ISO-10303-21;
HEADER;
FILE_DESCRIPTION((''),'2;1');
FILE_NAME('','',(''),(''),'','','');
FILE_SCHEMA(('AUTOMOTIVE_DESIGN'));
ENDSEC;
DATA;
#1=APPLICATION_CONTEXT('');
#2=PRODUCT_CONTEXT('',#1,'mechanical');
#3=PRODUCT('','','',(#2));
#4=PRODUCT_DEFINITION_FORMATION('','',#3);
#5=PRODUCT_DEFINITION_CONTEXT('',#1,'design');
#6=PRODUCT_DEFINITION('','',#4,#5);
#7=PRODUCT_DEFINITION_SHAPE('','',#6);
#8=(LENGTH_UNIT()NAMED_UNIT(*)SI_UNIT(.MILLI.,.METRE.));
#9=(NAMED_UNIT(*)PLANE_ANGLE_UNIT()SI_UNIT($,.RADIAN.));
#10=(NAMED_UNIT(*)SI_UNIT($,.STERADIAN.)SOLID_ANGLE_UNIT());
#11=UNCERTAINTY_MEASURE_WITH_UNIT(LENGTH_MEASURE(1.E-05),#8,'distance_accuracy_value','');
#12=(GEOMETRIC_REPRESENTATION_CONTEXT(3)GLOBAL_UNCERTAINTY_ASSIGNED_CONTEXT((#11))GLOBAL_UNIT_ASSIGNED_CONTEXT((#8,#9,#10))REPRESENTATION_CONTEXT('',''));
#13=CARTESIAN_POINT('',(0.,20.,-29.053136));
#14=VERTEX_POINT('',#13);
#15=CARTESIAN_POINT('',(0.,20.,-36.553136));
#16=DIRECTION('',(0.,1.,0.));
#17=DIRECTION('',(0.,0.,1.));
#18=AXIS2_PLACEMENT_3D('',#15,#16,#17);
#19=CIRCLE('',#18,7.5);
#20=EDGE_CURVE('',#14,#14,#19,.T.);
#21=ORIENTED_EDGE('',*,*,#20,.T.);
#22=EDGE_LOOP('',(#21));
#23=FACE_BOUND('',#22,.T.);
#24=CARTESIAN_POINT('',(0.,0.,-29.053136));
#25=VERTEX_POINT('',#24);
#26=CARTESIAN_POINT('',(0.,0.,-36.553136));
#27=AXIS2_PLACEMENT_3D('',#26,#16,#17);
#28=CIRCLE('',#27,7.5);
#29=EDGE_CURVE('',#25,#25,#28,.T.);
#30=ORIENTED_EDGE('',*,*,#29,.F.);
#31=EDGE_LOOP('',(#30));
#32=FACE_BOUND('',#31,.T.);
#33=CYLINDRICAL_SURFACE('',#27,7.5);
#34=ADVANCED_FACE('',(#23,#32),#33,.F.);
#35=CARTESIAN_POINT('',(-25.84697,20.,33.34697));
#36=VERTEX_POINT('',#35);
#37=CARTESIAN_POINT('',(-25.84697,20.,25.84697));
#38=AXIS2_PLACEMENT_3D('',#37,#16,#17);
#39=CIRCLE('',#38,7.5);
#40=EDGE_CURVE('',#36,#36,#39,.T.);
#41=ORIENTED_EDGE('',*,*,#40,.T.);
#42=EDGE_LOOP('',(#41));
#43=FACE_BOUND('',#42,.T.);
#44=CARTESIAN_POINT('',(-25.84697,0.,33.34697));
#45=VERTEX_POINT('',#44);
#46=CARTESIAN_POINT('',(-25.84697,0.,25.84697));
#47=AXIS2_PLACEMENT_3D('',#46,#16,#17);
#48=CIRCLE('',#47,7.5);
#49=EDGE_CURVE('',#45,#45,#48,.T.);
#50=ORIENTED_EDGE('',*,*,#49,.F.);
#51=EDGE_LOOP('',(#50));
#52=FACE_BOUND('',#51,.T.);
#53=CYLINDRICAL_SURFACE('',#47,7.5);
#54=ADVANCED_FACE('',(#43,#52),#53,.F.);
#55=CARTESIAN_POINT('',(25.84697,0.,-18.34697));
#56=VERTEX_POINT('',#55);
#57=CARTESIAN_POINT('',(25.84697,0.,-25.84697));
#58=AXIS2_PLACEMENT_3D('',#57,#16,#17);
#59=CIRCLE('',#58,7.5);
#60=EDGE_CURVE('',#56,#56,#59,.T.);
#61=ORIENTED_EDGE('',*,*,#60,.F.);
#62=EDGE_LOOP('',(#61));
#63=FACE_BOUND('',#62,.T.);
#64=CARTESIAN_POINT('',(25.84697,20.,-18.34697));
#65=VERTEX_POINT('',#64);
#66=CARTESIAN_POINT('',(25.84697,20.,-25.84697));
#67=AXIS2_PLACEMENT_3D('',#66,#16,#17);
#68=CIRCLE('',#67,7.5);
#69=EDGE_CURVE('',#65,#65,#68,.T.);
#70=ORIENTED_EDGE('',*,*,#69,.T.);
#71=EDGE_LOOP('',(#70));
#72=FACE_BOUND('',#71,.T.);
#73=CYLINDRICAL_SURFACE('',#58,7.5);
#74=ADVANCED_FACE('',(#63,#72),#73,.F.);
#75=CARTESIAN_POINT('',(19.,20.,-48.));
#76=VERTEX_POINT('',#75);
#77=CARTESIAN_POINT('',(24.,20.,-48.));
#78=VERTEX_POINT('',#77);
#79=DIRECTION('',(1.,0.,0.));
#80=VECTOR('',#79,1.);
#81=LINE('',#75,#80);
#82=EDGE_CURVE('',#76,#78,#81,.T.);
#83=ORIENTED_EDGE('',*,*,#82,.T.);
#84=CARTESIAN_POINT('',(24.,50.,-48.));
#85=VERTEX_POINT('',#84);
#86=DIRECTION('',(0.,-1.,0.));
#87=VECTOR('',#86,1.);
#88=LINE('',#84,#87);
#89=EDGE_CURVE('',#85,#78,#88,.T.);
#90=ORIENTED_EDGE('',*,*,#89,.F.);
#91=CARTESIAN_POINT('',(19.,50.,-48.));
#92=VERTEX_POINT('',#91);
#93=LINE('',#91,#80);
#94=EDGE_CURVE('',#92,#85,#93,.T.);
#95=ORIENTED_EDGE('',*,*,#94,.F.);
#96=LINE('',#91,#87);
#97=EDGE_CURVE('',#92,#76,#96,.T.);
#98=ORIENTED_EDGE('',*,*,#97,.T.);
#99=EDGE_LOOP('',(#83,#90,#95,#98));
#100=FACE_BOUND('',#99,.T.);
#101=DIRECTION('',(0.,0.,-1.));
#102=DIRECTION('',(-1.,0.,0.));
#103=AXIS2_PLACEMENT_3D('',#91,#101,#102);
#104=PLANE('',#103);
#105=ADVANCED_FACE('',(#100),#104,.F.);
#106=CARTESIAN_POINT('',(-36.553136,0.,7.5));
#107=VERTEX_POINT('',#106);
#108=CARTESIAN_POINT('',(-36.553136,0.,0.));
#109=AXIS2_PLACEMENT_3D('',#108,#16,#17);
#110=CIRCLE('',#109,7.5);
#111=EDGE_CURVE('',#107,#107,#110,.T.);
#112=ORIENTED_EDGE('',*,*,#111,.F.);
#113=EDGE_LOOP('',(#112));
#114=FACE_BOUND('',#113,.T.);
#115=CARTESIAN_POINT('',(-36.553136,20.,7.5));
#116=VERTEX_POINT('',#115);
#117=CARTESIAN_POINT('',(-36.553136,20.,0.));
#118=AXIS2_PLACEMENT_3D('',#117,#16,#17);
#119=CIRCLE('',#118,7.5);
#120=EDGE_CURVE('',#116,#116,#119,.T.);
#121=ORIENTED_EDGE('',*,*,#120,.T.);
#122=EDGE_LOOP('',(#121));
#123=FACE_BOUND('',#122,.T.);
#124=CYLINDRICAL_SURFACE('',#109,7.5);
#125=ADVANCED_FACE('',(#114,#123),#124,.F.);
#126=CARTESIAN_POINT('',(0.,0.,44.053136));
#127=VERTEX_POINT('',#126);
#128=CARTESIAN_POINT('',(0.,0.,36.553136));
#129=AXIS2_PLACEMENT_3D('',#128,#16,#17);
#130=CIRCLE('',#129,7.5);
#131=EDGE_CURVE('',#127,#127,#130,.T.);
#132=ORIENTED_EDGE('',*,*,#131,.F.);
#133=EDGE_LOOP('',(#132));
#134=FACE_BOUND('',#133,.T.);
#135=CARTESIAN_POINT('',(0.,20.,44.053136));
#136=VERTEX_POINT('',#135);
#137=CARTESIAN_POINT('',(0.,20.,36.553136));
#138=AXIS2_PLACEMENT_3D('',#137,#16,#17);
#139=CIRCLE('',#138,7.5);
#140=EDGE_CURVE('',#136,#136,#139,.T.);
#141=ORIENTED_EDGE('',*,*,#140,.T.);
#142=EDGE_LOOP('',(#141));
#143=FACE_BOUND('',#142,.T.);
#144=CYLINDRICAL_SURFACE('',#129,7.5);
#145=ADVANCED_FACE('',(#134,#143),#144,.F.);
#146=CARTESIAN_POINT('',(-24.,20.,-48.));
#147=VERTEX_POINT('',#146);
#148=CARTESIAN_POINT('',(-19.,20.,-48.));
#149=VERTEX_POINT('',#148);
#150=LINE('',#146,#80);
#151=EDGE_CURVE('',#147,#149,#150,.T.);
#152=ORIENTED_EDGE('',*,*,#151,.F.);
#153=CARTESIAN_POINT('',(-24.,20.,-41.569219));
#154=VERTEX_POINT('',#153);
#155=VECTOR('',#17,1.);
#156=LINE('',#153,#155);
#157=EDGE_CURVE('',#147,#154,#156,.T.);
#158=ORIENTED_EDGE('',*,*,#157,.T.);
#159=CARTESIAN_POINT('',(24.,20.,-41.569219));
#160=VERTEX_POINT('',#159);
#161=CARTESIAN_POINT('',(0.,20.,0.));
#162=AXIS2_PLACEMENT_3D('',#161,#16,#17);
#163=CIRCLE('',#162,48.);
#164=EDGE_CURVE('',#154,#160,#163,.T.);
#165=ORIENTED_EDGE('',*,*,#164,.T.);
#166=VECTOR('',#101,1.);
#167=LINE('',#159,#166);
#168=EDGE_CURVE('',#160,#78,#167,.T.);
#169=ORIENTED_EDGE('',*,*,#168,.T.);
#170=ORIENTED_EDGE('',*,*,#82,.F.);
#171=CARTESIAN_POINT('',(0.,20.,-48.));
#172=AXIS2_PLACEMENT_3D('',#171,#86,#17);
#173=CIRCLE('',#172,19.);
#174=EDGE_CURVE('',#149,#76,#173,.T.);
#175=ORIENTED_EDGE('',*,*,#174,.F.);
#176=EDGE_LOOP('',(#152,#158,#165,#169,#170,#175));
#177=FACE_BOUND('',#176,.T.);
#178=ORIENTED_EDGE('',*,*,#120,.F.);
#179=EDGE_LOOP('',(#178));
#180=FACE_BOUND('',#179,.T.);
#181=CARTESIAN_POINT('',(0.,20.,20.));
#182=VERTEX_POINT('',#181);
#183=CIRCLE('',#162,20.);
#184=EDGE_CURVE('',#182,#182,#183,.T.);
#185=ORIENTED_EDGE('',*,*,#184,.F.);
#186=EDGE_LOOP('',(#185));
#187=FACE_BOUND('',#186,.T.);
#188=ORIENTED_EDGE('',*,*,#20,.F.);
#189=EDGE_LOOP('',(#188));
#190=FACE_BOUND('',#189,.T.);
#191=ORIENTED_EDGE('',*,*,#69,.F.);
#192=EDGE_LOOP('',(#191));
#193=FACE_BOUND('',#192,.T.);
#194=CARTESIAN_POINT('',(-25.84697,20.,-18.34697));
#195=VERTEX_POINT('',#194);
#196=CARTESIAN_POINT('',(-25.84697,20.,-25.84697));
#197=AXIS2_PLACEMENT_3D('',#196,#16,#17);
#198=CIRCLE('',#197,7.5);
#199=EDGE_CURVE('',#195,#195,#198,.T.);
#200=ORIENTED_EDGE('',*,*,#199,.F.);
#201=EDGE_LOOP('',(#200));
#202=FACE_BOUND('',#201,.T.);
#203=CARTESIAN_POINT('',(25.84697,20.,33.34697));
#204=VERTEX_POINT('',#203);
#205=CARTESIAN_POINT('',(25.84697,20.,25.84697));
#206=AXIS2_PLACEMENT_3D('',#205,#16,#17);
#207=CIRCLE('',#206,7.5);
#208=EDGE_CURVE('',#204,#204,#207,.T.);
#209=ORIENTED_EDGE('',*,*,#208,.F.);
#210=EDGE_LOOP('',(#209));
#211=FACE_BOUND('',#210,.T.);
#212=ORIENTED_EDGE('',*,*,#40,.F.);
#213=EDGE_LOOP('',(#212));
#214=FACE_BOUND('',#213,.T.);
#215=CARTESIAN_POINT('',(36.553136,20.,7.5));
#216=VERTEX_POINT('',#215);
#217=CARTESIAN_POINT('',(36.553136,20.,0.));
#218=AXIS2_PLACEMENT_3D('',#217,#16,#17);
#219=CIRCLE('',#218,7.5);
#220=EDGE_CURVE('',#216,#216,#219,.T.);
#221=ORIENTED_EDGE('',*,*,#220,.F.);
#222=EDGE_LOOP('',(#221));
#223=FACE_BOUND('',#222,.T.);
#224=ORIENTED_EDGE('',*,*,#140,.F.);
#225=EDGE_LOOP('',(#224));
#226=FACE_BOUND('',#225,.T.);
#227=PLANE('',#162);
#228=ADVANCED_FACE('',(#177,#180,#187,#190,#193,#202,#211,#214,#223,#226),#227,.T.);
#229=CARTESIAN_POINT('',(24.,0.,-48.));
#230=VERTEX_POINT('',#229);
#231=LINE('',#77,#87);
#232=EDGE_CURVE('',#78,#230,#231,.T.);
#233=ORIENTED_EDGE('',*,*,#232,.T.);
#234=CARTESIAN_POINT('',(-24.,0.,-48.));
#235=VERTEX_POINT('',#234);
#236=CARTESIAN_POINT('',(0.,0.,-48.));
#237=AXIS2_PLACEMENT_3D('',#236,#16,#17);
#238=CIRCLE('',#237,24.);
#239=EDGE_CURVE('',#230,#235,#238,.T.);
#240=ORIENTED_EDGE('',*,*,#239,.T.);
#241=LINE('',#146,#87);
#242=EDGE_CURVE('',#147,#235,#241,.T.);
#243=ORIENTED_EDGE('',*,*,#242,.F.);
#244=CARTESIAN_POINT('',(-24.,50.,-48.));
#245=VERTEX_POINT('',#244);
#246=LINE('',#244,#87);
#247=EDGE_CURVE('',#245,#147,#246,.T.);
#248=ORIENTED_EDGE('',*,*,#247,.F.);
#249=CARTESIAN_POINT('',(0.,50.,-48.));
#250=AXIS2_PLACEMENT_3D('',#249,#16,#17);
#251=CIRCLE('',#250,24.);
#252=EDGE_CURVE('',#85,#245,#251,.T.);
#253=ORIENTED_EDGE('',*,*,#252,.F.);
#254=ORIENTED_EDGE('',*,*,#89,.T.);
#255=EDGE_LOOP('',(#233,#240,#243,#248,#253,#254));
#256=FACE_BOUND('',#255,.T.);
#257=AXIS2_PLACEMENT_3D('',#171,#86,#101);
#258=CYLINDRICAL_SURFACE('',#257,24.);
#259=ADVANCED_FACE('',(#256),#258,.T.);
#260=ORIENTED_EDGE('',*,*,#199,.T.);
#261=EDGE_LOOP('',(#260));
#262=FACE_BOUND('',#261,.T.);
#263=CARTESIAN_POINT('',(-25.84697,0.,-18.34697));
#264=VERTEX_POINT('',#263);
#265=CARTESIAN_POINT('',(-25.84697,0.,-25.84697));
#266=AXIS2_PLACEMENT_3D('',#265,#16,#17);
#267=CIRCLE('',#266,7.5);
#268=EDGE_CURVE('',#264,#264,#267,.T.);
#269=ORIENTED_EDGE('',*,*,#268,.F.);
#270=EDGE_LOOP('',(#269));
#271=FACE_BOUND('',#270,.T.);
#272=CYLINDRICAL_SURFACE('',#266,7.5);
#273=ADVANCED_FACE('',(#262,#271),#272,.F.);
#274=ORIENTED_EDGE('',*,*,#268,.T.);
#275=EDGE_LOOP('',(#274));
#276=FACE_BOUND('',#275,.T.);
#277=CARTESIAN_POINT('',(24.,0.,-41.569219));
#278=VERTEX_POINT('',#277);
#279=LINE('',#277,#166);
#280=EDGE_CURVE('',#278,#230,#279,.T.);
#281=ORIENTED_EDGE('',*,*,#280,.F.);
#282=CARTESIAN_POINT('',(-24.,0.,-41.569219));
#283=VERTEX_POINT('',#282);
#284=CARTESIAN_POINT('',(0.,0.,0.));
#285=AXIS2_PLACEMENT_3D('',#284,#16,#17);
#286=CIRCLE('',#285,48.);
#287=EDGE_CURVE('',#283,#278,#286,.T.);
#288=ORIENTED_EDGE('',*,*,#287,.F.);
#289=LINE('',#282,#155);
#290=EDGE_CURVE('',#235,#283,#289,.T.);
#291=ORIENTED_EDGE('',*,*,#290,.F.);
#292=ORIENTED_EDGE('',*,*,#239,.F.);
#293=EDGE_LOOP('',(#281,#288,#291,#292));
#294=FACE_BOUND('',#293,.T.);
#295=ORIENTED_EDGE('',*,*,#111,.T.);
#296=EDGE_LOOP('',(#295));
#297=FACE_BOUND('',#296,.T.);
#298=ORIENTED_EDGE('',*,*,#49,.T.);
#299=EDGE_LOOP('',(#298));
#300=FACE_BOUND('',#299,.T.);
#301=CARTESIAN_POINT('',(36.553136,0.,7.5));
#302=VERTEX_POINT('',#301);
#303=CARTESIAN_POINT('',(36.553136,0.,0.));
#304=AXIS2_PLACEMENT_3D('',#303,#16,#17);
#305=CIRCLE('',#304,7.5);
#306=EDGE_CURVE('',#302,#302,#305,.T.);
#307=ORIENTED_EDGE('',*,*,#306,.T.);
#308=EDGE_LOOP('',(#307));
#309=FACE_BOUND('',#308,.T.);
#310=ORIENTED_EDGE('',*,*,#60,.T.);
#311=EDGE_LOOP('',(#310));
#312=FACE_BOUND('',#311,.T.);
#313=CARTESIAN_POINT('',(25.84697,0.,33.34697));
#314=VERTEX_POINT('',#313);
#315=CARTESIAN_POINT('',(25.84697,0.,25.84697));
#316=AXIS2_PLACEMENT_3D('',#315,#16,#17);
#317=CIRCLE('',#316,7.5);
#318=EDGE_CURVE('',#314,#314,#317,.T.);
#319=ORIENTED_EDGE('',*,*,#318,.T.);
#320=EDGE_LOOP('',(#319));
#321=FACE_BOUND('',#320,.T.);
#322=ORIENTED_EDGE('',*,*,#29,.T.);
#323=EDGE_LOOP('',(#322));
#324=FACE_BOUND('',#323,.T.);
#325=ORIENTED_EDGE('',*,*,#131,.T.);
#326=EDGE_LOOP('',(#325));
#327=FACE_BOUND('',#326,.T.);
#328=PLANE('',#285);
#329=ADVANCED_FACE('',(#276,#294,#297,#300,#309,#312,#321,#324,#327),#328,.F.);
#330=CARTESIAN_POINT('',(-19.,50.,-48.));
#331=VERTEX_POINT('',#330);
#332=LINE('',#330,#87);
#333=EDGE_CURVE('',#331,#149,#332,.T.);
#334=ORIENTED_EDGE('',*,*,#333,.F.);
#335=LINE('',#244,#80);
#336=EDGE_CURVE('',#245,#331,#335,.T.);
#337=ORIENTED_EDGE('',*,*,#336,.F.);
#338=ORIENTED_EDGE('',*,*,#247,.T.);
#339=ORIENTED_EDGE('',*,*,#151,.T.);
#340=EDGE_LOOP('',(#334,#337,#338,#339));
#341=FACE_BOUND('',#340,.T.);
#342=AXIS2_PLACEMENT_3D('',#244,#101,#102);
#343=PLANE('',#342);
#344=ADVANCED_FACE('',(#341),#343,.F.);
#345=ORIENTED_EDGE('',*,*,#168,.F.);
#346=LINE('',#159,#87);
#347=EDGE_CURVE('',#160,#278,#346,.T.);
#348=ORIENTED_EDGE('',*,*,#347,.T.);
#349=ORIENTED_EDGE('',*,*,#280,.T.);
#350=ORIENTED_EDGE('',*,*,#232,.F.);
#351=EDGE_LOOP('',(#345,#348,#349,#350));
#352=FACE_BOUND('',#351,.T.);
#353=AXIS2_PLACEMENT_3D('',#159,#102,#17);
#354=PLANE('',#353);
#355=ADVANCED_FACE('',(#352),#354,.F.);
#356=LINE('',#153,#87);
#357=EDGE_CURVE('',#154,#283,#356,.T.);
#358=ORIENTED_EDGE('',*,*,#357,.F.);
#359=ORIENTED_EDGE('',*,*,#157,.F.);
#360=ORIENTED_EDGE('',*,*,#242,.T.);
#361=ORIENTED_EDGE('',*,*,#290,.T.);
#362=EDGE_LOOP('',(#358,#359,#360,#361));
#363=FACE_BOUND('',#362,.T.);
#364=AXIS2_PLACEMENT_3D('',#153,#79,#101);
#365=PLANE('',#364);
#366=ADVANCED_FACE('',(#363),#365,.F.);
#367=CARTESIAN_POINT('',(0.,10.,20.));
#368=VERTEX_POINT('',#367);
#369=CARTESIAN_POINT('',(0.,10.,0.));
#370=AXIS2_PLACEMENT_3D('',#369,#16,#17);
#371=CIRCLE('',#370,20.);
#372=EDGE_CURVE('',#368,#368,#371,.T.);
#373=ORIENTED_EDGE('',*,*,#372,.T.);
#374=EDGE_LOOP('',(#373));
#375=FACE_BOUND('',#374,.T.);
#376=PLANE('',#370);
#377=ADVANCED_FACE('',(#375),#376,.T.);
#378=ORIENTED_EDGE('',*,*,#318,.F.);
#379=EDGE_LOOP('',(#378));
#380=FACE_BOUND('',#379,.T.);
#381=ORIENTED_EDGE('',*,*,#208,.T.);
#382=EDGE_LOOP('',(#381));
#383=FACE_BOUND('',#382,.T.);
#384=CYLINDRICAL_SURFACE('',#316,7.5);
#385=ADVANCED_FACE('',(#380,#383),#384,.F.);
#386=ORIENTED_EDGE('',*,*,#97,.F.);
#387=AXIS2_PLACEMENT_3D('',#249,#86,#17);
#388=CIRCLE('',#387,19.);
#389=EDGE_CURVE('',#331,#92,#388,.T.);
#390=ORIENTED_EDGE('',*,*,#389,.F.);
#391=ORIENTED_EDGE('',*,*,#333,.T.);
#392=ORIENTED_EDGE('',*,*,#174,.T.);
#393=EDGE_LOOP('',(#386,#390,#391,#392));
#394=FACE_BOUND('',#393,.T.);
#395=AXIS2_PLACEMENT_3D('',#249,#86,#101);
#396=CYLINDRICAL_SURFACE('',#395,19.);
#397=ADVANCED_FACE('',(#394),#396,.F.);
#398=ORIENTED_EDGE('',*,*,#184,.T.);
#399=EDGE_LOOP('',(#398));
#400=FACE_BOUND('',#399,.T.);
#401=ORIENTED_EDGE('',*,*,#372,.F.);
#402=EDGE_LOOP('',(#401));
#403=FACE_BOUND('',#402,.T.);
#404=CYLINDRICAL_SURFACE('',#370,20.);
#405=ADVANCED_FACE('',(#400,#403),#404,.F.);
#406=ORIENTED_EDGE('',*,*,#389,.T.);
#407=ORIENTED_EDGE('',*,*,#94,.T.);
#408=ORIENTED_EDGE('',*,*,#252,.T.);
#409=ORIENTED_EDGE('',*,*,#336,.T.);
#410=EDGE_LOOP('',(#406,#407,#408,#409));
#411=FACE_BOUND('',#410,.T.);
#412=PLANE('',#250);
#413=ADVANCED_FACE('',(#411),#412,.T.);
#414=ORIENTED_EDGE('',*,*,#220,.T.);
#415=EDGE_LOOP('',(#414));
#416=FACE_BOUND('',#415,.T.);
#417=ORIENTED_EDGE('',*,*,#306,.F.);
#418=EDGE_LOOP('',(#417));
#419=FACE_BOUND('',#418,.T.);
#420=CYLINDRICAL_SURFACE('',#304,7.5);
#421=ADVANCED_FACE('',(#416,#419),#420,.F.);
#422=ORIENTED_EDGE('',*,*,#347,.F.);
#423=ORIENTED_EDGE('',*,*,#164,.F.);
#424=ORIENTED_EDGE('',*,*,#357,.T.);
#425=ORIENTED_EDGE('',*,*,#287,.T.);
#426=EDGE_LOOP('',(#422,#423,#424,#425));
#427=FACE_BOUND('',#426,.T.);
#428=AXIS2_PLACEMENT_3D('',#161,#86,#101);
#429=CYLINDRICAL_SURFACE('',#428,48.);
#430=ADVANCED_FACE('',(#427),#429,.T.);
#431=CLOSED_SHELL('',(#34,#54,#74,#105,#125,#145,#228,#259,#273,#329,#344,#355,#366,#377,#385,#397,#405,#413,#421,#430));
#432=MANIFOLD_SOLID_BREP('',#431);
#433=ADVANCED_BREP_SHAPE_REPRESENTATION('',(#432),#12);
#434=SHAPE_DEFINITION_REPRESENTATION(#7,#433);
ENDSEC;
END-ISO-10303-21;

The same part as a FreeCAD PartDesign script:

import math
import FreeCAD as App
import Part
import Sketcher

V = App.Vector
Q = App.Units.Quantity

doc = App.newDocument("Part")
body = doc.addObject("PartDesign::Body", "Body")

sketch1 = body.newObject("Sketcher::SketchObject", "Sketch")
sketch1.AttachmentSupport = (doc.getObject("XZ_Plane"), [""])
sketch1.MapMode = "FlatFace"
sketch1.addGeometry(Part.LineSegment(V(-24, -48, 0), V(-24, -42, 0)), False)
sketch1.addGeometry(Part.ArcOfCircle(Part.Circle(V(0, 0, 0), V(0, 0, 1), 48), math.radians(-60), math.radians(240)), False)
sketch1.addGeometry(Part.LineSegment(V(24, -42, 0), V(24, -48, 0)), False)
sketch1.addGeometry(Part.ArcOfCircle(Part.Circle(V(0, -48, 0), V(0, 0, 1), 24), math.radians(180), math.radians(360)), False)
sketch1.addConstraint(Sketcher.Constraint("Coincident", 0, 2, 1, 2))
sketch1.addConstraint(Sketcher.Constraint("Coincident", 1, 1, 2, 1))
sketch1.addConstraint(Sketcher.Constraint("Tangent", 2, 2, 3, 2))
sketch1.addConstraint(Sketcher.Constraint("Tangent", 3, 1, 0, 1))
sketch1.addConstraint(Sketcher.Constraint("Vertical", 0))
sketch1.addConstraint(Sketcher.Constraint("Vertical", 2))
sketch1.addConstraint(Sketcher.Constraint("Coincident", 1, 3, -1, 1))
sketch1.addConstraint(Sketcher.Constraint("PointOnObject", 3, 3, -2))
sketch1.addConstraint(Sketcher.Constraint("Radius", 1, Q("48 mm")))
sketch1.addConstraint(Sketcher.Constraint("Radius", 3, Q("24 mm")))
sketch1.addConstraint(Sketcher.Constraint("DistanceY", 3, 3, -1, 1, Q("48 mm")))
pad1 = body.newObject("PartDesign::Pad", "Pad")
pad1.Profile = sketch1
pad1.Length = 20
pad1.Reversed = True

sketch2 = body.newObject("Sketcher::SketchObject", "Sketch001")
sketch2.AttachmentSupport = (doc.getObject("XZ_Plane"), [""])
sketch2.MapMode = "FlatFace"
sketch2.AttachmentOffset = App.Placement(V(0, 0, -20), App.Rotation())
sketch2.addGeometry(Part.Circle(V(0, 0, 0), V(0, 0, 1), 20), False)
sketch2.addConstraint(Sketcher.Constraint("Coincident", 0, 3, -1, 1))
sketch2.addConstraint(Sketcher.Constraint("Diameter", 0, Q("40 mm")))
pocket1 = body.newObject("PartDesign::Pocket", "Pocket")
pocket1.Profile = sketch2
pocket1.Length = 10
pocket1.Reversed = True

sketch3 = body.newObject("Sketcher::SketchObject", "Sketch002")
sketch3.AttachmentSupport = (doc.getObject("XZ_Plane"), [""])
sketch3.MapMode = "FlatFace"
sketch3.AttachmentOffset = App.Placement(V(0, 0, -20), App.Rotation())
sketch3.addGeometry(Part.Circle(V(0, -37, 0), V(0, 0, 1), 8), False)
sketch3.addGeometry(Part.Circle(V(26, -26, 0), V(0, 0, 1), 8), False)
sketch3.addGeometry(Part.Circle(V(37, 0, 0), V(0, 0, 1), 8), False)
sketch3.addGeometry(Part.Circle(V(26, 26, 0), V(0, 0, 1), 8), False)
sketch3.addGeometry(Part.Circle(V(0, 37, 0), V(0, 0, 1), 8), False)
sketch3.addGeometry(Part.Circle(V(-26, 26, 0), V(0, 0, 1), 8), False)
sketch3.addGeometry(Part.Circle(V(-37, 0, 0), V(0, 0, 1), 8), False)
sketch3.addGeometry(Part.Circle(V(-26, -26, 0), V(0, 0, 1), 8), False)
sketch3.addConstraint(Sketcher.Constraint("Equal", 0, 1))
sketch3.addConstraint(Sketcher.Constraint("Equal", 1, 2))
sketch3.addConstraint(Sketcher.Constraint("Equal", 2, 3))
sketch3.addConstraint(Sketcher.Constraint("Equal", 3, 4))
sketch3.addConstraint(Sketcher.Constraint("Equal", 4, 5))
sketch3.addConstraint(Sketcher.Constraint("Equal", 5, 6))
sketch3.addConstraint(Sketcher.Constraint("Equal", 6, 7))
sketch3.addConstraint(Sketcher.Constraint("Symmetric", 0, 3, 4, 3, -1, 1))
sketch3.addConstraint(Sketcher.Constraint("Symmetric", 1, 3, 5, 3, -1, 1))
sketch3.addConstraint(Sketcher.Constraint("Symmetric", 2, 3, 6, 3, -1, 1))
sketch3.addConstraint(Sketcher.Constraint("Symmetric", 3, 3, 7, 3, -1, 1))
sketch3.addConstraint(Sketcher.Constraint("Symmetric", 3, 3, 5, 3, -2))
sketch3.addConstraint(Sketcher.Constraint("PointOnObject", 0, 3, -2))
sketch3.addConstraint(Sketcher.Constraint("PointOnObject", 2, 3, -1))
sketch3.addConstraint(Sketcher.Constraint("Diameter", 0, Q("15 mm")))
sketch3.addConstraint(Sketcher.Constraint("DistanceX", -1, 1, 1, 3, Q("25.84697 mm")))
sketch3.addConstraint(Sketcher.Constraint("DistanceY", 1, 3, -1, 1, Q("25.84697 mm")))
sketch3.addConstraint(Sketcher.Constraint("DistanceY", 0, 3, 4, 3, Q("73.106272 mm")))
sketch3.addConstraint(Sketcher.Constraint("DistanceX", -1, 1, 2, 3, Q("36.553136 mm")))
pocket2 = body.newObject("PartDesign::Pocket", "Pocket001")
pocket2.Profile = sketch3
pocket2.Type = "ThroughAll"
pocket2.Reversed = True

sketch4 = body.newObject("Sketcher::SketchObject", "Sketch003")
sketch4.AttachmentSupport = (doc.getObject("XZ_Plane"), [""])
sketch4.MapMode = "FlatFace"
sketch4.AttachmentOffset = App.Placement(V(0, 0, -20), App.Rotation())
sketch4.addGeometry(Part.LineSegment(V(-24, -48, 0), V(-19, -48, 0)), False)
sketch4.addGeometry(Part.ArcOfCircle(Part.Circle(V(0, -48, 0), V(0, 0, 1), 19), math.radians(180), math.radians(360)), False)
sketch4.addGeometry(Part.LineSegment(V(19, -48, 0), V(24, -48, 0)), False)
sketch4.addGeometry(Part.ArcOfCircle(Part.Circle(V(0, -48, 0), V(0, 0, 1), 24), math.radians(180), math.radians(360)), False)
sketch4.addConstraint(Sketcher.Constraint("Coincident", 0, 2, 1, 1))
sketch4.addConstraint(Sketcher.Constraint("Coincident", 1, 2, 2, 1))
sketch4.addConstraint(Sketcher.Constraint("Coincident", 2, 2, 3, 2))
sketch4.addConstraint(Sketcher.Constraint("Coincident", 3, 1, 0, 1))
sketch4.addConstraint(Sketcher.Constraint("Horizontal", 0))
sketch4.addConstraint(Sketcher.Constraint("Horizontal", 2))
sketch4.addConstraint(Sketcher.Constraint("Coincident", 3, 3, 1, 3))
sketch4.addConstraint(Sketcher.Constraint("Symmetric", 0, 2, 1, 2, -2))
sketch4.addConstraint(Sketcher.Constraint("Horizontal", 3, 3, 0, 2))
sketch4.addConstraint(Sketcher.Constraint("Radius", 1, Q("19 mm")))
sketch4.addConstraint(Sketcher.Constraint("Radius", 3, Q("24 mm")))
sketch4.addConstraint(Sketcher.Constraint("DistanceY", 1, 3, -1, 1, Q("48 mm")))
pad2 = body.newObject("PartDesign::Pad", "Pad001")
pad2.Profile = sketch4
pad2.Length = 30
pad2.Reversed = True

doc.recompute()
